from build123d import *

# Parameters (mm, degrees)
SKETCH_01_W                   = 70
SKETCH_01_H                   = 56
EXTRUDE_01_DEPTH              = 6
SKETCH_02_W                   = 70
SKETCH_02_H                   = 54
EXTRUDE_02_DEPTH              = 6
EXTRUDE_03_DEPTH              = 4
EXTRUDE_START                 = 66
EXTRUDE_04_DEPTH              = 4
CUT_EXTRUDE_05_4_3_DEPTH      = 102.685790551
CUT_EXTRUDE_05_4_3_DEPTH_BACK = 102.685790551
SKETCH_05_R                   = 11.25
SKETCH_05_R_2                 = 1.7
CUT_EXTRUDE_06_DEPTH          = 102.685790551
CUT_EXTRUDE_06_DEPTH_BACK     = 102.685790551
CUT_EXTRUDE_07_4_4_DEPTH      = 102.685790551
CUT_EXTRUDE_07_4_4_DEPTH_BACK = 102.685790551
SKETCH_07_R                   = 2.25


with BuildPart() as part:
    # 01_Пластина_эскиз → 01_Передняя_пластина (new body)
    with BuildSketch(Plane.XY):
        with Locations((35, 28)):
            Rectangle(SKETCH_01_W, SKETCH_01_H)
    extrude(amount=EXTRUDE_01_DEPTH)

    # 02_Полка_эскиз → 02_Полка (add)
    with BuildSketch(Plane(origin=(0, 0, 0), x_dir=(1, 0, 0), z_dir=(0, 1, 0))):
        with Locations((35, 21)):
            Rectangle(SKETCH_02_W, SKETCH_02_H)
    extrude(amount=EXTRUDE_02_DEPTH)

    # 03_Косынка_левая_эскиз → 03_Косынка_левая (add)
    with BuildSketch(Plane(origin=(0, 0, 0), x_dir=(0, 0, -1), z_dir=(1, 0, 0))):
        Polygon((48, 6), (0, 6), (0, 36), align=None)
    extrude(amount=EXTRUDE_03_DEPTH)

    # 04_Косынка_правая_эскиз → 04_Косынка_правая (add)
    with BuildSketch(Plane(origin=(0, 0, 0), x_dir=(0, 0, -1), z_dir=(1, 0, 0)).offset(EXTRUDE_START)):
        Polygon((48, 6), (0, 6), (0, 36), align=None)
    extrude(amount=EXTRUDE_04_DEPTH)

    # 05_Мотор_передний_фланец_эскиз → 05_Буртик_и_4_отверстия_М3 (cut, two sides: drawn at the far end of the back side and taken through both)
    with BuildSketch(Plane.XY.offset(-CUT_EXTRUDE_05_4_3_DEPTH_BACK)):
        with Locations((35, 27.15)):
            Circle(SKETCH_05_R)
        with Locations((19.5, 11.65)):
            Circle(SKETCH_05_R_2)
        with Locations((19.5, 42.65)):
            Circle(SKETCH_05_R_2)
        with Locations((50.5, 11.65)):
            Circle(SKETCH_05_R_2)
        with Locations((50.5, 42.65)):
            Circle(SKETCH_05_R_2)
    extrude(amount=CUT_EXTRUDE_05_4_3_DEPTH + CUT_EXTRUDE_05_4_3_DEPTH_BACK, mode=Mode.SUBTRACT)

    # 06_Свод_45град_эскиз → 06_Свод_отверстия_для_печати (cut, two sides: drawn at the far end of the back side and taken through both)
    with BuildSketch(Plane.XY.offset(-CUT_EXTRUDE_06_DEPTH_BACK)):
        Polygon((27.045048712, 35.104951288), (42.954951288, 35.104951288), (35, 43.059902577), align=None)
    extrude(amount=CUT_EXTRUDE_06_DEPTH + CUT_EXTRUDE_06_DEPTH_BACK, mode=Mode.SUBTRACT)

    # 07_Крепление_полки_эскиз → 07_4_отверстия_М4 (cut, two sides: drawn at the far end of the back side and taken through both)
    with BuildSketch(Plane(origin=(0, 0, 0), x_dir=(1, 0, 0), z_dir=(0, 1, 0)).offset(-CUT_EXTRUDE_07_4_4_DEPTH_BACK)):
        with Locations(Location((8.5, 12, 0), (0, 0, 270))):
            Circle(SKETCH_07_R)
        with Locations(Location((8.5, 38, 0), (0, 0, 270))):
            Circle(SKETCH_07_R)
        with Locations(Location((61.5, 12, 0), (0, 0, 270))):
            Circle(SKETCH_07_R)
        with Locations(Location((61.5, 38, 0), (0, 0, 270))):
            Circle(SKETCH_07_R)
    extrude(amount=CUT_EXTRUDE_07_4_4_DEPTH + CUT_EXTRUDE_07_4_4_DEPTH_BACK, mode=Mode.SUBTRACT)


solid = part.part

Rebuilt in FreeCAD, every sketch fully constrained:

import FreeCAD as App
import Part
import Sketcher
from FreeCAD import Vector
Q = App.Units.Quantity


def add_polygon(sketch, points):
    """Adds a closed chain of lines whose ends are joined by coincident constraints."""
    first, n = sketch.GeometryCount, len(points)
    for a, b in zip(points, points[1:] + points[:1]):
        sketch.addGeometry(Part.LineSegment(App.Vector(*a, 0), App.Vector(*b, 0)), False)
    for i in range(n):
        sketch.addConstraint(Sketcher.Constraint("Coincident", first + i, 2, first + (i + 1) % n, 1))

doc = App.newDocument("Part")
body = doc.addObject("PartDesign::Body", "Body")

# Sketch on XY plane
sketch1 = doc.addObject("Sketcher::SketchObject", "Sketch")
body.addObject(sketch1)
sketch1.AttachmentSupport = (doc.XY_Plane, [""])
sketch1.MapMode = "FlatFace"
add_polygon(sketch1, [(0, 56), (0, 0), (70, 0), (70, 56)])  # lines 0-3
sketch1.addConstraint([
    Sketcher.Constraint("Vertical", 0),
    Sketcher.Constraint("Horizontal", 1),
    Sketcher.Constraint("Vertical", 2),
    Sketcher.Constraint("Horizontal", 3),
    Sketcher.Constraint("Coincident", 0, 2, -1, 1),
    Sketcher.Constraint("DistanceX", 1, 1, 1, 2, Q("70 mm")),
    Sketcher.Constraint("DistanceY", 0, 2, 0, 1, Q("56 mm")),
])
pad1 = doc.addObject("PartDesign::Pad", "Pad")
body.addObject(pad1)
pad1.Profile = sketch1
pad1.Length = 6

# Sketch on XZ plane
sketch2 = doc.addObject("Sketcher::SketchObject", "Sketch001")
body.addObject(sketch2)
sketch2.AttachmentSupport = (doc.XZ_Plane, [""])
sketch2.MapMode = "FlatFace"
add_polygon(sketch2, [(0, -48), (0, 6), (70, 6), (70, -48)])  # lines 0-3
sketch2.addConstraint([
    Sketcher.Constraint("Vertical", 0),
    Sketcher.Constraint("Horizontal", 1),
    Sketcher.Constraint("Vertical", 2),
    Sketcher.Constraint("Horizontal", 3),
    Sketcher.Constraint("PointOnObject", 0, 2, -2),
    Sketcher.Constraint("DistanceX", 1, 1, 1, 2, Q("70 mm")),
    Sketcher.Constraint("DistanceY", 0, 1, 0, 2, Q("54 mm")),
    Sketcher.Constraint("DistanceY", -1, 1, 0, 2, Q("6 mm")),
])
pad2 = doc.addObject("PartDesign::Pad", "Pad001")
body.addObject(pad2)
pad2.Profile = sketch2
pad2.Length = 6
pad2.Reversed = True

# Sketch on YZ plane
sketch3 = doc.addObject("Sketcher::SketchObject", "Sketch002")
body.addObject(sketch3)
sketch3.AttachmentSupport = (doc.YZ_Plane, [""])
sketch3.MapMode = "FlatFace"
add_polygon(sketch3, [(6, 0), (6, -48), (36, 0)])  # lines 0-2
sketch3.addConstraint([
    Sketcher.Constraint("Vertical", 0),
    Sketcher.Constraint("Horizontal", 2),
    Sketcher.Constraint("PointOnObject", 1, 2, -1),
    Sketcher.Constraint("DistanceX", 2, 2, 2, 1, Q("30 mm")),
    Sketcher.Constraint("DistanceY", 0, 2, 0, 1, Q("48 mm")),
    Sketcher.Constraint("DistanceX", -1, 1, 0, 2, Q("6 mm")),
])
pad3 = doc.addObject("PartDesign::Pad", "Pad002")
body.addObject(pad3)
pad3.Profile = sketch3
pad3.Length = 4

# Sketch on YZ plane
sketch4 = doc.addObject("Sketcher::SketchObject", "Sketch003")
body.addObject(sketch4)
sketch4.AttachmentSupport = (doc.YZ_Plane, [""])
sketch4.MapMode = "FlatFace"
sketch4.AttachmentOffset = App.Placement(Vector(0, 0, 66), App.Rotation())
add_polygon(sketch4, [(6, 0), (6, -48), (36, 0)])  # lines 0-2
sketch4.addConstraint([
    Sketcher.Constraint("Vertical", 0),
    Sketcher.Constraint("Horizontal", 2),
    Sketcher.Constraint("PointOnObject", 1, 2, -1),
    Sketcher.Constraint("DistanceX", 2, 2, 2, 1, Q("30 mm")),
    Sketcher.Constraint("DistanceY", 0, 2, 0, 1, Q("48 mm")),
    Sketcher.Constraint("DistanceX", -1, 1, 0, 2, Q("6 mm")),
])
pad4 = doc.addObject("PartDesign::Pad", "Pad003")
body.addObject(pad4)
pad4.Profile = sketch4
pad4.Length = 4

# Sketch on XY plane
sketch5 = doc.addObject("Sketcher::SketchObject", "Sketch004")
body.addObject(sketch5)
sketch5.AttachmentSupport = (doc.XY_Plane, [""])
sketch5.MapMode = "FlatFace"
sketch5.addGeometry([
    Part.Circle(Vector(35, 27.1, 0), Vector(0, 0, 1), 11.2),  # 0
    Part.Circle(Vector(19.5, 11.7, 0), Vector(0, 0, 1), 1.7),  # 1
    Part.Circle(Vector(19.5, 42.6, 0), Vector(0, 0, 1), 1.7),  # 2
    Part.Circle(Vector(50.5, 11.7, 0), Vector(0, 0, 1), 1.7),  # 3
    Part.Circle(Vector(50.5, 42.6, 0), Vector(0, 0, 1), 1.7),  # 4
], False)
sketch5.addConstraint([
    Sketcher.Constraint("Equal", 1, 2),
    Sketcher.Constraint("Equal", 2, 3),
    Sketcher.Constraint("Equal", 3, 4),
    Sketcher.Constraint("Horizontal", 1, 3, 3, 3),
    Sketcher.Constraint("Horizontal", 2, 3, 4, 3),
    Sketcher.Constraint("Vertical", 1, 3, 2, 3),
    Sketcher.Constraint("Vertical", 3, 3, 4, 3),
    Sketcher.Constraint("Diameter", 0, Q("22.5 mm")),
    Sketcher.Constraint("Diameter", 1, Q("3.4 mm")),
    Sketcher.Constraint("DistanceX", -1, 1, 0, 3, Q("35 mm")),
    Sketcher.Constraint("DistanceY", 1, 3, 2, 3, Q("31 mm")),
    Sketcher.Constraint("DistanceX", 1, 3, 3, 3, Q("31 mm")),
    Sketcher.Constraint("DistanceX", -1, 1, 1, 3, Q("19.5 mm")),
    Sketcher.Constraint("DistanceY", 1, 3, 0, 3, Q("15.5 mm")),
    Sketcher.Constraint("DistanceY", -1, 1, 0, 3, Q("27.15 mm")),
])
pocket1 = doc.addObject("PartDesign::Pocket", "Pocket")
body.addObject(pocket1)
pocket1.Profile = sketch5
pocket1.Type = "ThroughAll"
pocket1.Midplane = True

# Sketch on XY plane
sketch6 = doc.addObject("Sketcher::SketchObject", "Sketch005")
body.addObject(sketch6)
sketch6.AttachmentSupport = (doc.XY_Plane, [""])
sketch6.MapMode = "FlatFace"
add_polygon(sketch6, [(27, 35), (43, 35), (35, 43)])  # lines 0-2
sketch6.addConstraint([
    Sketcher.Constraint("Horizontal", 0),
    Sketcher.Constraint("Perpendicular", 1, 2),
    Sketcher.Constraint("Equal", 1, 2),
    Sketcher.Constraint("DistanceX", -1, 1, 1, 2, Q("35 mm")),
    Sketcher.Constraint("Distance", 1, Q("11.25 mm")),
    Sketcher.Constraint("DistanceY", -1, 1, 0, 2, Q("35.104951 mm")),
])
pocket2 = doc.addObject("PartDesign::Pocket", "Pocket001")
body.addObject(pocket2)
pocket2.Profile = sketch6
pocket2.Type = "ThroughAll"
pocket2.Midplane = True

# Sketch on XZ plane
sketch7 = doc.addObject("Sketcher::SketchObject", "Sketch006")
body.addObject(sketch7)
sketch7.AttachmentSupport = (doc.XZ_Plane, [""])
sketch7.MapMode = "FlatFace"
sketch7.addGeometry([
    Part.Circle(Vector(8.5, -12, 0), Vector(0, 0, 1), 2.2),
    Part.Circle(Vector(8.5, -38, 0), Vector(0, 0, 1), 2.2),
    Part.Circle(Vector(61.5, -12, 0), Vector(0, 0, 1), 2.2),
    Part.Circle(Vector(61.5, -38, 0), Vector(0, 0, 1), 2.2),
], False)
sketch7.addConstraint([
    Sketcher.Constraint("Equal", 0, 1),
    Sketcher.Constraint("Equal", 1, 2),
    Sketcher.Constraint("Equal", 2, 3),
    Sketcher.Constraint("Horizontal", 0, 3, 2, 3),
    Sketcher.Constraint("Horizontal", 1, 3, 3, 3),
    Sketcher.Constraint("Vertical", 0, 3, 1, 3),
    Sketcher.Constraint("Vertical", 2, 3, 3, 3),
    Sketcher.Constraint("Diameter", 0, Q("4.5 mm")),
    Sketcher.Constraint("DistanceY", 0, 3, -1, 1, Q("12 mm")),
    Sketcher.Constraint("DistanceY", 1, 3, -1, 1, Q("38 mm")),
    Sketcher.Constraint("DistanceX", 0, 3, 2, 3, Q("53 mm")),
    Sketcher.Constraint("DistanceX", -1, 1, 0, 3, Q("8.5 mm")),
])
pocket3 = doc.addObject("PartDesign::Pocket", "Pocket002")
body.addObject(pocket3)
pocket3.Profile = sketch7
pocket3.Type = "ThroughAll"
pocket3.Midplane = True

doc.recompute()
